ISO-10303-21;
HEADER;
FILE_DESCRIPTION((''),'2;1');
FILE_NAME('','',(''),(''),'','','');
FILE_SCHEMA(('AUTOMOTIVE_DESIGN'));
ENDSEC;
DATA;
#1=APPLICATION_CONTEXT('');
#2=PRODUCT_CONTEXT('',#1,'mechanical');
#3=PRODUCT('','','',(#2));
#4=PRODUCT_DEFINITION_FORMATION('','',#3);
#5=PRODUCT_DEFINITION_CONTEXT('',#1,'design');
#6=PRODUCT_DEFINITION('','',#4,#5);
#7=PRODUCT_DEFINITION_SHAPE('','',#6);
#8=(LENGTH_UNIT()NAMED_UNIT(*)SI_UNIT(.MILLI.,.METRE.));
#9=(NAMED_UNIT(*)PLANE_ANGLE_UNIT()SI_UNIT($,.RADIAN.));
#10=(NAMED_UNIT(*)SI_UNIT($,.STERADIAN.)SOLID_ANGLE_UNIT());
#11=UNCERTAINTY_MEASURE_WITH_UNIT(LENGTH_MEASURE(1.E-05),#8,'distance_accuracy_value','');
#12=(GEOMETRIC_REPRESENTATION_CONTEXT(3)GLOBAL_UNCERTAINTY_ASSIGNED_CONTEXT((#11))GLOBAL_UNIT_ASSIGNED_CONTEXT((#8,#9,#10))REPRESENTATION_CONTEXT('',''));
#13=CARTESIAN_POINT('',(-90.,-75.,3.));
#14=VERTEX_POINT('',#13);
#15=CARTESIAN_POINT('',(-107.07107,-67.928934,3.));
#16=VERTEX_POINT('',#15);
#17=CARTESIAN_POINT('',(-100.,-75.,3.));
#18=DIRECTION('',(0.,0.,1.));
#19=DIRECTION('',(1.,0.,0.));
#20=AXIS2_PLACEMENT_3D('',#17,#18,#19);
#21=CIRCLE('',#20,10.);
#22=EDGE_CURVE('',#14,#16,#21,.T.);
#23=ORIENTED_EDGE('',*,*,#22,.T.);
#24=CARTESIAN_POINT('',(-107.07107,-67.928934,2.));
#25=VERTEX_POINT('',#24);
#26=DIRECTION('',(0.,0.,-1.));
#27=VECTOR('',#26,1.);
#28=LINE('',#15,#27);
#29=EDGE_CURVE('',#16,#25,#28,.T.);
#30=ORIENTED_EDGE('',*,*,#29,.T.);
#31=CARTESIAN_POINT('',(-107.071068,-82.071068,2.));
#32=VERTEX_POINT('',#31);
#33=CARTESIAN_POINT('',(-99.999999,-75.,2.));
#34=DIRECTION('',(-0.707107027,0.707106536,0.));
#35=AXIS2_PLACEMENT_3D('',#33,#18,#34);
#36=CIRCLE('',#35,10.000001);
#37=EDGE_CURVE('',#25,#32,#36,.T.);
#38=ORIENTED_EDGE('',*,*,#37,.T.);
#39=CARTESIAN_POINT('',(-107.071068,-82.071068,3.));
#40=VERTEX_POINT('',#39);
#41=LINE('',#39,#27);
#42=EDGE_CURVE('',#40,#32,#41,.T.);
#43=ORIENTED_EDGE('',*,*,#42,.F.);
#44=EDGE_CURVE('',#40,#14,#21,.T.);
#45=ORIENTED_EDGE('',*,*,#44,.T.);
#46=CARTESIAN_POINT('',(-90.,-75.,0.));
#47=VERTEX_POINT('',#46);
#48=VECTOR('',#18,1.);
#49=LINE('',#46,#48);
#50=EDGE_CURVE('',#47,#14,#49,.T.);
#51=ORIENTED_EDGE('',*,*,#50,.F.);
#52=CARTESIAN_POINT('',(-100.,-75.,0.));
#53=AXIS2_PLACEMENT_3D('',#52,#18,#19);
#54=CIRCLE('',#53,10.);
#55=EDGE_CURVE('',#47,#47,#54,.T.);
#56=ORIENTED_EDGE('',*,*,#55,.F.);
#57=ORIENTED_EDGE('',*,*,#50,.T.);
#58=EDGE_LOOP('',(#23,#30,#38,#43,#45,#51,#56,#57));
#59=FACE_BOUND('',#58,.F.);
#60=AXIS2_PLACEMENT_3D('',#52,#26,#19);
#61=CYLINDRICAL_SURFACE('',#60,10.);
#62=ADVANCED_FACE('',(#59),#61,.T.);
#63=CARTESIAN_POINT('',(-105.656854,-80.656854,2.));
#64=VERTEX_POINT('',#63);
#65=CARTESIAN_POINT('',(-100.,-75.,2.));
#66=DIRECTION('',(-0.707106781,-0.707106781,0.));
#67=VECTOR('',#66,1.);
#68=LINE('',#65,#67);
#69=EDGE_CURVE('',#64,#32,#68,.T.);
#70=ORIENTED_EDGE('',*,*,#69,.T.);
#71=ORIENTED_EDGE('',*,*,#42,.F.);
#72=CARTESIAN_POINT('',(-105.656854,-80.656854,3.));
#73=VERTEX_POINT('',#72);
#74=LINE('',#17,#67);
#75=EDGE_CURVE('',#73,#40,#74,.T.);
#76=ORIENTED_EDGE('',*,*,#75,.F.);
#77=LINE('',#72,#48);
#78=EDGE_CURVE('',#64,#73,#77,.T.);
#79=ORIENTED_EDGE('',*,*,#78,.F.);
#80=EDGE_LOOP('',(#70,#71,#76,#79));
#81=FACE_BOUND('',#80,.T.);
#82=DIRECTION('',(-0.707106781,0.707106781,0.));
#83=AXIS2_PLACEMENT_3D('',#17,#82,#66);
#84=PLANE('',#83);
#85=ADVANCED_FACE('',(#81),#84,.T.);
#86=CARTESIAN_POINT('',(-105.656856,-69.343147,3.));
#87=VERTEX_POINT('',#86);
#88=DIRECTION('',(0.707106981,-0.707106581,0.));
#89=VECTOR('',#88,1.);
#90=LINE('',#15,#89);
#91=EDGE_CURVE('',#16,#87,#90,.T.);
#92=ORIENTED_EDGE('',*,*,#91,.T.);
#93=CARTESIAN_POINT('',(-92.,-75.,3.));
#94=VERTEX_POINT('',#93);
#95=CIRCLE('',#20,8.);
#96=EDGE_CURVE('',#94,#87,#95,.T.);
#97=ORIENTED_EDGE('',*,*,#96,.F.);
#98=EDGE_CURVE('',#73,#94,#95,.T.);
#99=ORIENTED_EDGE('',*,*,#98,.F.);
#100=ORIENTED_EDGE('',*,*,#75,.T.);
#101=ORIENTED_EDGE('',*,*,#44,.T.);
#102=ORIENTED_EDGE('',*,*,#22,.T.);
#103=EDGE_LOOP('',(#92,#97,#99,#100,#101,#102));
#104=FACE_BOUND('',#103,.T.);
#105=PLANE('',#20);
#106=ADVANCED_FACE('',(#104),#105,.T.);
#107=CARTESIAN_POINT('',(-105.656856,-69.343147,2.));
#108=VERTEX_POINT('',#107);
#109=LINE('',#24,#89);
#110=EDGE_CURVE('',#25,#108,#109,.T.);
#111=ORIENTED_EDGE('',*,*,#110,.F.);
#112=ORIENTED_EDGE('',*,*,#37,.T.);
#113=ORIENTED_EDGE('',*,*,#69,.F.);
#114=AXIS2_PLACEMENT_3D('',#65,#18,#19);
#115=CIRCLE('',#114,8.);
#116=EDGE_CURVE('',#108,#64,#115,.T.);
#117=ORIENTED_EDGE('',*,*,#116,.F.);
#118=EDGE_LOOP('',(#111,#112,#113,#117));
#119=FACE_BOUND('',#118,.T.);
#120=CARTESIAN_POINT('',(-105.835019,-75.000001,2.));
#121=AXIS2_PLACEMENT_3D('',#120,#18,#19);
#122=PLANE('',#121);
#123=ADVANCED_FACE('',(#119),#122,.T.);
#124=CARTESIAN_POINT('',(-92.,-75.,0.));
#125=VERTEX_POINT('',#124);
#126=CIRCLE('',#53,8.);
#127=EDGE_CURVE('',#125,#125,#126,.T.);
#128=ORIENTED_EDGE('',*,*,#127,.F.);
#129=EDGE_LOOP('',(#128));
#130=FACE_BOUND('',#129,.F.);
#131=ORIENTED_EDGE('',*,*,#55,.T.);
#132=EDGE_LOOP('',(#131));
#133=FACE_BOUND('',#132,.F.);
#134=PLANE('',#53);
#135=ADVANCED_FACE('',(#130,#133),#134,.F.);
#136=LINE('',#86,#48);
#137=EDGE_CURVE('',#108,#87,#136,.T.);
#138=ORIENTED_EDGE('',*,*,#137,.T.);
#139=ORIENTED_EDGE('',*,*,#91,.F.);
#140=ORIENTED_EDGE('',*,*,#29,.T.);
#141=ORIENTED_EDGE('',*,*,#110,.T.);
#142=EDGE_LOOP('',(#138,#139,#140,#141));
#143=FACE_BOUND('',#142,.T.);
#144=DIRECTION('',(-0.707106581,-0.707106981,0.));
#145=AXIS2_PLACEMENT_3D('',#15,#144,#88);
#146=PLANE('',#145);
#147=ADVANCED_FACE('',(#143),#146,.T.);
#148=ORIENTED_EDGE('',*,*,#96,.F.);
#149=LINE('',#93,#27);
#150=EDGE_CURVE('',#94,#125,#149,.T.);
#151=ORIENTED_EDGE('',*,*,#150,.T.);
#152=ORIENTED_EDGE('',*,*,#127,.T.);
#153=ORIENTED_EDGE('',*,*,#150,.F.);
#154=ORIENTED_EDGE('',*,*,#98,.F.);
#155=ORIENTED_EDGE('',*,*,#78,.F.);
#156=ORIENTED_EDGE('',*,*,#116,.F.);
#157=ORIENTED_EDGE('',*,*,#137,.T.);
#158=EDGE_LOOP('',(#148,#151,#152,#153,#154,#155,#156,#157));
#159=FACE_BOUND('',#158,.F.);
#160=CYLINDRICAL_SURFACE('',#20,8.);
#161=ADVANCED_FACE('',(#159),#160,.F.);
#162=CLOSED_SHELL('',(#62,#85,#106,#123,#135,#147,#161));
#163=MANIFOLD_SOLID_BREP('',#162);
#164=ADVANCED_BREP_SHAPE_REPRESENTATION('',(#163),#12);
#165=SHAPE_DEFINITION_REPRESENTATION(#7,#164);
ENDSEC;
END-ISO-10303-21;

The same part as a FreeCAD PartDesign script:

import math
import FreeCAD as App
import Part
import Sketcher
from FreeCAD import Vector
Q = App.Units.Quantity

doc = App.newDocument("Part")
body = doc.addObject("PartDesign::Body", "Body")

sketch1 = doc.addObject("Sketcher::SketchObject", "Sketch")
body.addObject(sketch1)
sketch1.AttachmentSupport = (doc.XY_Plane, [""])
sketch1.MapMode = "FlatFace"
sketch1.addGeometry(Part.Circle(Vector(0, 0, 0), Vector(0, 0, 1), 10), False)
sketch1.addConstraint([
    Sketcher.Constraint("Coincident", 0, 3, -1, 1),
    Sketcher.Constraint("Diameter", 0, Q("20 mm")),
])
pad1 = doc.addObject("PartDesign::Pad", "Pad")
body.addObject(pad1)
pad1.Profile = sketch1
pad1.Length = 3

sketch2 = doc.addObject("Sketcher::SketchObject", "Sketch001")
body.addObject(sketch2)
sketch2.AttachmentSupport = (doc.XY_Plane, [""])
sketch2.MapMode = "FlatFace"
sketch2.AttachmentOffset = App.Placement(Vector(0, 0, 3), App.Rotation())
sketch2.addGeometry(Part.Circle(Vector(0, 0, 0), Vector(0, 0, 1), 8), False)
sketch2.addConstraint([
    Sketcher.Constraint("Coincident", 0, 3, -1, 1),
    Sketcher.Constraint("Diameter", 0, Q("16 mm")),
])
pocket1 = doc.addObject("PartDesign::Pocket", "Pocket")
body.addObject(pocket1)
pocket1.Profile = sketch2
pocket1.Length = 5

sketch3 = doc.addObject("Sketcher::SketchObject", "Sketch002")
body.addObject(sketch3)
sketch3.AttachmentSupport = (doc.XY_Plane, [""])
sketch3.MapMode = "FlatFace"
sketch3.AttachmentOffset = App.Placement(Vector(0, 0, 3), App.Rotation())
sketch3.addGeometry([
    Part.ArcOfCircle(Part.Circle(Vector(0.000001, 0, 0), Vector(0, 0, 1), 10.000001), math.radians(135.00002), math.radians(224.999996)),
    Part.LineSegment(Vector(-7.071068, -7.071068, 0), Vector(0, 0, 0)),
    Part.LineSegment(Vector(0, 0, 0), Vector(-7.07107, 7.071066, 0)),
], False)
sketch3.addConstraint([
    Sketcher.Constraint("Coincident", 0, 2, 1, 1),
    Sketcher.Constraint("Coincident", 1, 2, 2, 1),
    Sketcher.Constraint("Coincident", 2, 2, 0, 1),
    Sketcher.Constraint("Coincident", 0, 3, -1, 1),
    Sketcher.Constraint("Coincident", 1, 2, -1, 1),
    Sketcher.Constraint("Perpendicular", 1, 2),
    Sketcher.Constraint("Radius", 0, Q("10.000001 mm")),
    Sketcher.Constraint("Angle", 1, Q("45 deg")),
])
pocket2 = doc.addObject("PartDesign::Pocket", "Pocket001")
body.addObject(pocket2)
pocket2.Profile = sketch3
pocket2.Length = 1
body2 = doc.addObject("PartDesign::Body", "Body001")
doc.recompute()

body.Placement = App.Placement(Vector(-100, -75, 0), App.Rotation(Vector(0, 0, 1), 0))
boolean = doc.addObject("PartDesign::Boolean", "Boolean")
body2.addObject(boolean)
boolean.Type = "Fuse"
boolean.addObjects([body])

doc.recompute()
